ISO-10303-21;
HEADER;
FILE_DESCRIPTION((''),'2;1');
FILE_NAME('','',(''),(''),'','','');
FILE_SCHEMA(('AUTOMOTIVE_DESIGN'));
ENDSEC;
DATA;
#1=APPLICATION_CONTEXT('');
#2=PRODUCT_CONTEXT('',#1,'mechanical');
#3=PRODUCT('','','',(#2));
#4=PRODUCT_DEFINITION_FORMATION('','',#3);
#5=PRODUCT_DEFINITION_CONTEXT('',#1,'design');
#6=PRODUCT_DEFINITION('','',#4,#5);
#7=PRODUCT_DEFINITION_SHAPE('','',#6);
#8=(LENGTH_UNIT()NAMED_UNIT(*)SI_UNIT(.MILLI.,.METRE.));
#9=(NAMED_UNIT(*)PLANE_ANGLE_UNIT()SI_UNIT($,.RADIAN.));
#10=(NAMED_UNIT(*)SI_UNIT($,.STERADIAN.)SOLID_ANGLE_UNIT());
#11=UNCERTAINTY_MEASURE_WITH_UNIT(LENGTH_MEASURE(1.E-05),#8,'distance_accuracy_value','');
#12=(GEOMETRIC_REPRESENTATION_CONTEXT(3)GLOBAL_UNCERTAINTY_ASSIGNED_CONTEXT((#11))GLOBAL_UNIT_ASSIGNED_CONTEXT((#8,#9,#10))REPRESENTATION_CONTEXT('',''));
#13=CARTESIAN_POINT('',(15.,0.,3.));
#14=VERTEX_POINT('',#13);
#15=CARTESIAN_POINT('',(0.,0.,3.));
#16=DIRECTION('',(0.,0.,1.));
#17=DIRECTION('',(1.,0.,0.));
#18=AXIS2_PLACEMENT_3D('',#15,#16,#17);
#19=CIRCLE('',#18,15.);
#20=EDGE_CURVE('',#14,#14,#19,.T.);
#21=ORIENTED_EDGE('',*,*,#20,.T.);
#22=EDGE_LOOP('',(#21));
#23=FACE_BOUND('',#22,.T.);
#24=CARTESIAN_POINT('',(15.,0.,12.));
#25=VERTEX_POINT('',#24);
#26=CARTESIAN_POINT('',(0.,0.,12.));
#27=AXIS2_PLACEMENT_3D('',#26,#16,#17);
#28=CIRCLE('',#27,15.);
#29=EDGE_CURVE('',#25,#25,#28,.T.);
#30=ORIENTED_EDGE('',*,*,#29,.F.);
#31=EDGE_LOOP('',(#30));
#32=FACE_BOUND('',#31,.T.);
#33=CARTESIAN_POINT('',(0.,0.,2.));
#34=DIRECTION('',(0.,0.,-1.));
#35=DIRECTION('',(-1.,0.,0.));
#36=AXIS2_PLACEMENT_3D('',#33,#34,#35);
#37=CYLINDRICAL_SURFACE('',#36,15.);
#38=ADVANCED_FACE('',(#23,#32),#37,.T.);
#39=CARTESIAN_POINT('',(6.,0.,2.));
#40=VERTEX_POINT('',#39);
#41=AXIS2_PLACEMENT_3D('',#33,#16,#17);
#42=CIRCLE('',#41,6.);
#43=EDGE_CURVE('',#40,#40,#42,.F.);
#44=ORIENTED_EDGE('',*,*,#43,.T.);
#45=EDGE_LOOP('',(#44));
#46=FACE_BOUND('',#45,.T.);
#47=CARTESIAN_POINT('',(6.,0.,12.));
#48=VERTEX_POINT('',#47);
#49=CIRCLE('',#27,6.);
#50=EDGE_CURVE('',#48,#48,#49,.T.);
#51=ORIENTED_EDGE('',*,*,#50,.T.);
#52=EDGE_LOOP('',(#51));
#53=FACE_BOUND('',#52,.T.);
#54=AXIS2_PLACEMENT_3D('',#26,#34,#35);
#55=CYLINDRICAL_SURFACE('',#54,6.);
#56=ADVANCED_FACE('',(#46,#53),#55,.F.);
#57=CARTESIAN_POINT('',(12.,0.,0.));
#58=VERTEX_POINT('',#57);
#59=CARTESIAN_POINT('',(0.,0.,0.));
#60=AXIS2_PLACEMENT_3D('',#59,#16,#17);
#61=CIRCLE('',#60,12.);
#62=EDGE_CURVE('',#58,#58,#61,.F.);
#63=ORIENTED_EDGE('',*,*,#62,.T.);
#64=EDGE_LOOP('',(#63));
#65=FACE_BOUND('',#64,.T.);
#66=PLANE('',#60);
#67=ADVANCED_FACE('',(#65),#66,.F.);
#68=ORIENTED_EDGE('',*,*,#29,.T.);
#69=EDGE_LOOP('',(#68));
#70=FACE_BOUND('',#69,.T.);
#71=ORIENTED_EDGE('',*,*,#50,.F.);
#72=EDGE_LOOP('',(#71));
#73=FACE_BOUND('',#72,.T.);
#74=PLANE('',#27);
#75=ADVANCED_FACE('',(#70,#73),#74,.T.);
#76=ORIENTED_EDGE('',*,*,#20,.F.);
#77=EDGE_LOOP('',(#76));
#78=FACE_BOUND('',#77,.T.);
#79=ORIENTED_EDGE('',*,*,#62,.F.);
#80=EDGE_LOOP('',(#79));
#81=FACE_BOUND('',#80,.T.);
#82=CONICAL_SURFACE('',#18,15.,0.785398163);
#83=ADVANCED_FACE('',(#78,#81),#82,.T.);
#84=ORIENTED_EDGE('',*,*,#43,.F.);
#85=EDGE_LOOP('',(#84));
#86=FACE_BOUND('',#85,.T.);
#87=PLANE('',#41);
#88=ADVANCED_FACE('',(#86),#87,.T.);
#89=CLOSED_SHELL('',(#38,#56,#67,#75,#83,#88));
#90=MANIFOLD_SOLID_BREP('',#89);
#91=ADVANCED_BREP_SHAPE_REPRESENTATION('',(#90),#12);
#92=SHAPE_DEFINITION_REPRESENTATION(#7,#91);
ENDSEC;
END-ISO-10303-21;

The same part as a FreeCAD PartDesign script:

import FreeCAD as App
import Part
import Sketcher

V = App.Vector


def edges_at(feature, points):
    """Names of the edges that pass closest to the given points."""
    edges = feature.Shape.Edges
    near = lambda p: min(range(len(edges)), key=lambda i: edges[i].distToShape(Part.Vertex(*p))[0])
    return sorted({f"Edge{near(p) + 1}" for p in points})

doc = App.newDocument("Part")
body = doc.addObject("PartDesign::Body", "Body")

# Sketch on XY plane
sketch1 = body.newObject("Sketcher::SketchObject", "Sketch")
sketch1.AttachmentSupport = (doc.getObject("XY_Plane"), [""])
sketch1.MapMode = "FlatFace"
sketch1.addGeometry(Part.Circle(V(0, 0, 0), V(0, 0, 1), 15), False)
sketch1.addConstraint([
    Sketcher.Constraint("Coincident", 0, 3, -1, 1),
    Sketcher.Constraint("Diameter", 0, 30.0),
])
pad1 = body.newObject("PartDesign::Pad", "Pad")
pad1.Profile = sketch1
pad1.Length = 2

# Sketch on XY plane
sketch2 = body.newObject("Sketcher::SketchObject", "Sketch001")
sketch2.AttachmentSupport = (doc.getObject("XY_Plane"), [""])
sketch2.MapMode = "FlatFace"
sketch2.AttachmentOffset = App.Placement(V(0, 0, 2), App.Rotation())
sketch2.addGeometry([
    Part.Circle(V(0, 0, 0), V(0, 0, 1), 15),
    Part.Circle(V(0, 0, 0), V(0, 0, 1), 6),
], False)
sketch2.addConstraint([
    Sketcher.Constraint("Coincident", 0, 3, -1, 1),
    Sketcher.Constraint("Coincident", 1, 3, -1, 1),
    Sketcher.Constraint("Diameter", 0, 30.0),
    Sketcher.Constraint("Diameter", 1, 12.0),
])
pad2 = body.newObject("PartDesign::Pad", "Pad001")
pad2.Profile = sketch2
pad2.Length = 10
doc.recompute()

chamfer = body.newObject("PartDesign::Chamfer", "Chamfer")
chamfer.Base = (pad2, edges_at(pad2, [(-15, 0, 0)]))
chamfer.Size = 3

doc.recompute()
